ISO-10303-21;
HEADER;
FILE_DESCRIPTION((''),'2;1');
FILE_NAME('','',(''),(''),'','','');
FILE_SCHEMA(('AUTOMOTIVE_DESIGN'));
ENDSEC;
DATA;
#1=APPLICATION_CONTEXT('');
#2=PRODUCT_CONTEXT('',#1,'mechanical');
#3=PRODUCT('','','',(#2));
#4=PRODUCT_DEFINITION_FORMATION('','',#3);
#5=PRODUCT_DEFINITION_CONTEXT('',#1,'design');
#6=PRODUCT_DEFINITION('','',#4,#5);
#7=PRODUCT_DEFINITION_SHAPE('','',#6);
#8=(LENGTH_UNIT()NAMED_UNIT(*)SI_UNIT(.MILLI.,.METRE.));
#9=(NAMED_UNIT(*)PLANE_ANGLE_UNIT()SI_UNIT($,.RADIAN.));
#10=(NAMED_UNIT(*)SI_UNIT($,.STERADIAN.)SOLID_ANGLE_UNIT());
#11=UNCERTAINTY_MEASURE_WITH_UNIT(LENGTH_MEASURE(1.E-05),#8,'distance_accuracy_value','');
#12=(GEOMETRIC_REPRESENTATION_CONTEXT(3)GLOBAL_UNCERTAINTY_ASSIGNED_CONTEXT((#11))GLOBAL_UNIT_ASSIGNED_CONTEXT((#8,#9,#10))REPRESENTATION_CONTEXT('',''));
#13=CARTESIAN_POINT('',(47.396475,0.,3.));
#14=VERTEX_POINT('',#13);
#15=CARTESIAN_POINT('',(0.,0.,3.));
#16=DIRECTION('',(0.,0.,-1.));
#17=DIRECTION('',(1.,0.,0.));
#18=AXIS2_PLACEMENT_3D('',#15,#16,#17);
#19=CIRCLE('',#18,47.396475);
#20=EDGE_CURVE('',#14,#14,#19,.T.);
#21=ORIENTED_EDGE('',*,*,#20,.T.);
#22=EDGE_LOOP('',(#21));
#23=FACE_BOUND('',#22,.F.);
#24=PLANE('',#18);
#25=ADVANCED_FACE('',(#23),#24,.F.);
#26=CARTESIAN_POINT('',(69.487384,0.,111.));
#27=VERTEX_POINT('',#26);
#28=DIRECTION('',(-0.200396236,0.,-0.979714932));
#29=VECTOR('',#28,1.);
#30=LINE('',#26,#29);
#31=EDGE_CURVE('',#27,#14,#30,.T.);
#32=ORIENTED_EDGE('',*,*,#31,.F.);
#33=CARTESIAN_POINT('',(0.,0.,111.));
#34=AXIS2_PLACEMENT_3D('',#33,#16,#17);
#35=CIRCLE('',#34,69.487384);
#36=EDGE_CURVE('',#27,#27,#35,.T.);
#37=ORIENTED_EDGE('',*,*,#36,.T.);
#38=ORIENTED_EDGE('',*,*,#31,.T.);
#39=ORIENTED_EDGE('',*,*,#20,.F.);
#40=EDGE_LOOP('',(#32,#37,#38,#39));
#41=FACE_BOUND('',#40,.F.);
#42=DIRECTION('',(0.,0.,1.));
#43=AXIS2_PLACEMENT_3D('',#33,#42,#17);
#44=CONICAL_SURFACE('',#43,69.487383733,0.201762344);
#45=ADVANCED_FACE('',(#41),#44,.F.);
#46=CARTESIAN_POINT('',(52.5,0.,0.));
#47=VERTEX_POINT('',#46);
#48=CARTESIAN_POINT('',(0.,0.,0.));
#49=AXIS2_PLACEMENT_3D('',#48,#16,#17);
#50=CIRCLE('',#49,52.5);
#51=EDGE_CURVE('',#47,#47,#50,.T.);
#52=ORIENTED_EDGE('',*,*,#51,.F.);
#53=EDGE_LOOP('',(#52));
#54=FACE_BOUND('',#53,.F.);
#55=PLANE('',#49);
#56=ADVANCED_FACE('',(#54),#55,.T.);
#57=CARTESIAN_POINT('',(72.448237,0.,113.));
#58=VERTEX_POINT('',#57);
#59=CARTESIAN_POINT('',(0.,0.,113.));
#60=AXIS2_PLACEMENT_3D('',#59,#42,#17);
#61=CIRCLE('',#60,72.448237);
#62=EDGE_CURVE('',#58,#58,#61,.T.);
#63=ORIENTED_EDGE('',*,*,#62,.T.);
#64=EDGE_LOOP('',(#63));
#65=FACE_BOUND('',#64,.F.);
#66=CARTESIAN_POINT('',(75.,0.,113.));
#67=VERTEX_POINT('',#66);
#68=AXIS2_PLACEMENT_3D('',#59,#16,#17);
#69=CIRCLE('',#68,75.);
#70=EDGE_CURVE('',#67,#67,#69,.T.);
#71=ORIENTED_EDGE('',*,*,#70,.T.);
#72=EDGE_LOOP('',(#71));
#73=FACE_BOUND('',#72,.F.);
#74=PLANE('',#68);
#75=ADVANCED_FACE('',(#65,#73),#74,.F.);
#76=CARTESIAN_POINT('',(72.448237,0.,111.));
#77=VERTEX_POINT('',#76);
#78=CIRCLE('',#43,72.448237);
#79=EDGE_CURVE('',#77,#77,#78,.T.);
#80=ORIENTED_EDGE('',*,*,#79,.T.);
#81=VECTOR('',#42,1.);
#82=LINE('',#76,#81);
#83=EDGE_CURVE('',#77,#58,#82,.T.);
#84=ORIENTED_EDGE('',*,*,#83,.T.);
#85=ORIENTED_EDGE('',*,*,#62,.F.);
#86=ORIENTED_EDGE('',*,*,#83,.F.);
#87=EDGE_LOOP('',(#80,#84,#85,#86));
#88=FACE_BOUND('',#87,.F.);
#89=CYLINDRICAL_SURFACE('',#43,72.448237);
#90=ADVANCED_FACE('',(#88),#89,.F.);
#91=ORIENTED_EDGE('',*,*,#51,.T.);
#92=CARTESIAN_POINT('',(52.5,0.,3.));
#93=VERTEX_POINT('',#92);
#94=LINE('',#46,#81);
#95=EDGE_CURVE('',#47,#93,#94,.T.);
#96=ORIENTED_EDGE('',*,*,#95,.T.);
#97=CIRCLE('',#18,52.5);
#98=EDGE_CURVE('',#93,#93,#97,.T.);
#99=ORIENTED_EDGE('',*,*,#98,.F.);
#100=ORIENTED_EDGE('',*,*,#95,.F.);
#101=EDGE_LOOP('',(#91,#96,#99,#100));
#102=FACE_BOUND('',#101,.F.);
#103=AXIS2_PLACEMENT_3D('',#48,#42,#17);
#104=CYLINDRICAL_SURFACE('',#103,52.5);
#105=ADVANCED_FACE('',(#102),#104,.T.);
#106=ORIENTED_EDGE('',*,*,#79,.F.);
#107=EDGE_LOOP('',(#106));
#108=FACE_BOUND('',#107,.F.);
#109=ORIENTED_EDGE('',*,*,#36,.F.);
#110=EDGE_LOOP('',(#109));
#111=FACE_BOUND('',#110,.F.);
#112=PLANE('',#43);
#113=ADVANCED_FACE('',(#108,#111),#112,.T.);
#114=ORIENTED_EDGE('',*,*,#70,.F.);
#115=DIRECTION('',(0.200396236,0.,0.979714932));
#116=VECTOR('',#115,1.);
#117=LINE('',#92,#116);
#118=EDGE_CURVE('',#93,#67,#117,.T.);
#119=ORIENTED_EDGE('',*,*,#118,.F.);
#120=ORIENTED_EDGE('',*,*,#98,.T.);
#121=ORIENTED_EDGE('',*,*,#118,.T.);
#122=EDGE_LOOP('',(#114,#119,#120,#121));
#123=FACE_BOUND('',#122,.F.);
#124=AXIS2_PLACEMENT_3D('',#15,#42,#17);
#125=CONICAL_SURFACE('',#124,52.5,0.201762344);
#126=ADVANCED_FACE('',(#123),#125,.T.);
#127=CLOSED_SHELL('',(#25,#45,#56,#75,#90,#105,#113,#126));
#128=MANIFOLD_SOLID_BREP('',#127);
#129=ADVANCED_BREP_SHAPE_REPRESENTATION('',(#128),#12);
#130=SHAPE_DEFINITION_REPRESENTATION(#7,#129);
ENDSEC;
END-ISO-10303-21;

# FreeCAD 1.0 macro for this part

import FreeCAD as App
import Part
import Sketcher
from FreeCAD import Vector

doc = App.newDocument("Part")
params = doc.addObject("Spreadsheet::Sheet", "Params")
for row, (alias, value) in enumerate([
    ("sketch1_height", "3 mm"),
    ("sketch1_width", "52.5 mm"),
    ("revolution_angle", "360 deg"),
    ("sketch2_height", "2 mm"),
    ("groove_angle", "360 deg"),
], start=1):
    params.set(f"A{row}", alias)
    params.set(f"B{row}", "=" + value)
    params.setAlias(f"B{row}", alias)

body = doc.addObject("PartDesign::Body", "Body")

sketch1 = body.newObject("Sketcher::SketchObject", "Sketch")
sketch1.AttachmentSupport = (doc.getObject("XZ_Plane"), [""])
sketch1.MapMode = "FlatFace"
sketch1.addGeometry(Part.LineSegment(Vector(0, 3, 0), Vector(0, 0, 0)), False)
sketch1.addGeometry(Part.LineSegment(Vector(0, 0, 0), Vector(52.5, 0, 0)), False)
sketch1.addGeometry(Part.LineSegment(Vector(52.5, 0, 0), Vector(52.5, 3, 0)), False)
sketch1.addGeometry(Part.LineSegment(Vector(52.5, 3, 0), Vector(75, 113, 0)), False)
sketch1.addGeometry(Part.LineSegment(Vector(75, 113, 0), Vector(69.9, 113, 0)), False)
sketch1.addGeometry(Part.LineSegment(Vector(69.9, 113, 0), Vector(69.5, 111, 0)), False)
sketch1.addGeometry(Part.LineSegment(Vector(69.5, 111, 0), Vector(47.4, 3, 0)), False)
sketch1.addGeometry(Part.LineSegment(Vector(47.4, 3, 0), Vector(0, 3, 0)), False)
sketch1.addConstraint(Sketcher.Constraint("Coincident", 0, 2, 1, 1))
sketch1.addConstraint(Sketcher.Constraint("Coincident", 1, 2, 2, 1))
sketch1.addConstraint(Sketcher.Constraint("Coincident", 2, 2, 3, 1))
sketch1.addConstraint(Sketcher.Constraint("Coincident", 3, 2, 4, 1))
sketch1.addConstraint(Sketcher.Constraint("Coincident", 4, 2, 5, 1))
sketch1.addConstraint(Sketcher.Constraint("Coincident", 5, 2, 6, 1))
sketch1.addConstraint(Sketcher.Constraint("Coincident", 6, 2, 7, 1))
sketch1.addConstraint(Sketcher.Constraint("Coincident", 7, 2, 0, 1))
sketch1.addConstraint(Sketcher.Constraint("Vertical", 0))
sketch1.addConstraint(Sketcher.Constraint("Horizontal", 1))
sketch1.addConstraint(Sketcher.Constraint("Vertical", 2))
sketch1.addConstraint(Sketcher.Constraint("Horizontal", 4))
sketch1.addConstraint(Sketcher.Constraint("Horizontal", 7))
sketch1.addConstraint(Sketcher.Constraint("Coincident", 0, 2, -1, 1))
sketch1.addConstraint(Sketcher.Constraint("Parallel", 3, 5))
sketch1.addConstraint(Sketcher.Constraint("Parallel", 5, 6))
sketch1.addConstraint(Sketcher.Constraint("Horizontal", 2, 2, 6, 2))
sketch1.addConstraint(Sketcher.Constraint("DistanceY", 0, 2, 0, 1, 3.0))
sketch1.addConstraint(Sketcher.Constraint("DistanceX", 1, 1, 1, 2, 52.5))
sketch1.addConstraint(Sketcher.Constraint("DistanceX", -1, 1, 3, 2, 75.0))
sketch1.addConstraint(Sketcher.Constraint("DistanceY", -1, 1, 3, 2, 113.0))
sketch1.addConstraint(Sketcher.Constraint("DistanceY", -1, 1, 5, 2, 111.0))
sketch1.addConstraint(Sketcher.Constraint("DistanceX", 4, 2, 4, 1, 5.103525))
sketch1.setExpression("Constraints[17]", "Params.sketch1_height")
sketch1.setExpression("Constraints[18]", "Params.sketch1_width")
revolution = body.newObject("PartDesign::Revolution", "Revolution")
revolution.Profile = sketch1
revolution.ReferenceAxis = (sketch1, ["V_Axis"])
revolution.setExpression("Angle", "Params.revolution_angle")

sketch2 = body.newObject("Sketcher::SketchObject", "Sketch001")
sketch2.AttachmentSupport = (doc.getObject("XZ_Plane"), [""])
sketch2.MapMode = "FlatFace"
sketch2.addGeometry(Part.LineSegment(Vector(69.9, 113, 0), Vector(69.5, 111, 0)), False)
sketch2.addGeometry(Part.LineSegment(Vector(69.5, 111, 0), Vector(72.4, 111, 0)), False)
sketch2.addGeometry(Part.LineSegment(Vector(72.4, 111, 0), Vector(72.4, 113, 0)), False)
sketch2.addGeometry(Part.LineSegment(Vector(72.4, 113, 0), Vector(69.9, 113, 0)), False)
sketch2.addConstraint(Sketcher.Constraint("Coincident", 0, 2, 1, 1))
sketch2.addConstraint(Sketcher.Constraint("Coincident", 1, 2, 2, 1))
sketch2.addConstraint(Sketcher.Constraint("Coincident", 2, 2, 3, 1))
sketch2.addConstraint(Sketcher.Constraint("Coincident", 3, 2, 0, 1))
sketch2.addConstraint(Sketcher.Constraint("Horizontal", 1))
sketch2.addConstraint(Sketcher.Constraint("Vertical", 2))
sketch2.addConstraint(Sketcher.Constraint("Horizontal", 3))
sketch2.addConstraint(Sketcher.Constraint("DistanceY", 2, 1, 2, 2, 2.0))
sketch2.addConstraint(Sketcher.Constraint("DistanceY", -1, 1, 0, 2, 111.0))
sketch2.addConstraint(Sketcher.Constraint("Distance", 0, 2.04141))
sketch2.addConstraint(Sketcher.Constraint("DistanceX", 1, 1, 1, 2, 2.960854))
sketch2.addConstraint(Sketcher.Constraint("DistanceX", -1, 1, 0, 2, 69.487384))
sketch2.setExpression("Constraints[7]", "Params.sketch2_height")
groove = body.newObject("PartDesign::Groove", "Groove")
groove.Profile = sketch2
groove.ReferenceAxis = (sketch2, ["V_Axis"])
groove.setExpression("Angle", "Params.groove_angle")

doc.recompute()
